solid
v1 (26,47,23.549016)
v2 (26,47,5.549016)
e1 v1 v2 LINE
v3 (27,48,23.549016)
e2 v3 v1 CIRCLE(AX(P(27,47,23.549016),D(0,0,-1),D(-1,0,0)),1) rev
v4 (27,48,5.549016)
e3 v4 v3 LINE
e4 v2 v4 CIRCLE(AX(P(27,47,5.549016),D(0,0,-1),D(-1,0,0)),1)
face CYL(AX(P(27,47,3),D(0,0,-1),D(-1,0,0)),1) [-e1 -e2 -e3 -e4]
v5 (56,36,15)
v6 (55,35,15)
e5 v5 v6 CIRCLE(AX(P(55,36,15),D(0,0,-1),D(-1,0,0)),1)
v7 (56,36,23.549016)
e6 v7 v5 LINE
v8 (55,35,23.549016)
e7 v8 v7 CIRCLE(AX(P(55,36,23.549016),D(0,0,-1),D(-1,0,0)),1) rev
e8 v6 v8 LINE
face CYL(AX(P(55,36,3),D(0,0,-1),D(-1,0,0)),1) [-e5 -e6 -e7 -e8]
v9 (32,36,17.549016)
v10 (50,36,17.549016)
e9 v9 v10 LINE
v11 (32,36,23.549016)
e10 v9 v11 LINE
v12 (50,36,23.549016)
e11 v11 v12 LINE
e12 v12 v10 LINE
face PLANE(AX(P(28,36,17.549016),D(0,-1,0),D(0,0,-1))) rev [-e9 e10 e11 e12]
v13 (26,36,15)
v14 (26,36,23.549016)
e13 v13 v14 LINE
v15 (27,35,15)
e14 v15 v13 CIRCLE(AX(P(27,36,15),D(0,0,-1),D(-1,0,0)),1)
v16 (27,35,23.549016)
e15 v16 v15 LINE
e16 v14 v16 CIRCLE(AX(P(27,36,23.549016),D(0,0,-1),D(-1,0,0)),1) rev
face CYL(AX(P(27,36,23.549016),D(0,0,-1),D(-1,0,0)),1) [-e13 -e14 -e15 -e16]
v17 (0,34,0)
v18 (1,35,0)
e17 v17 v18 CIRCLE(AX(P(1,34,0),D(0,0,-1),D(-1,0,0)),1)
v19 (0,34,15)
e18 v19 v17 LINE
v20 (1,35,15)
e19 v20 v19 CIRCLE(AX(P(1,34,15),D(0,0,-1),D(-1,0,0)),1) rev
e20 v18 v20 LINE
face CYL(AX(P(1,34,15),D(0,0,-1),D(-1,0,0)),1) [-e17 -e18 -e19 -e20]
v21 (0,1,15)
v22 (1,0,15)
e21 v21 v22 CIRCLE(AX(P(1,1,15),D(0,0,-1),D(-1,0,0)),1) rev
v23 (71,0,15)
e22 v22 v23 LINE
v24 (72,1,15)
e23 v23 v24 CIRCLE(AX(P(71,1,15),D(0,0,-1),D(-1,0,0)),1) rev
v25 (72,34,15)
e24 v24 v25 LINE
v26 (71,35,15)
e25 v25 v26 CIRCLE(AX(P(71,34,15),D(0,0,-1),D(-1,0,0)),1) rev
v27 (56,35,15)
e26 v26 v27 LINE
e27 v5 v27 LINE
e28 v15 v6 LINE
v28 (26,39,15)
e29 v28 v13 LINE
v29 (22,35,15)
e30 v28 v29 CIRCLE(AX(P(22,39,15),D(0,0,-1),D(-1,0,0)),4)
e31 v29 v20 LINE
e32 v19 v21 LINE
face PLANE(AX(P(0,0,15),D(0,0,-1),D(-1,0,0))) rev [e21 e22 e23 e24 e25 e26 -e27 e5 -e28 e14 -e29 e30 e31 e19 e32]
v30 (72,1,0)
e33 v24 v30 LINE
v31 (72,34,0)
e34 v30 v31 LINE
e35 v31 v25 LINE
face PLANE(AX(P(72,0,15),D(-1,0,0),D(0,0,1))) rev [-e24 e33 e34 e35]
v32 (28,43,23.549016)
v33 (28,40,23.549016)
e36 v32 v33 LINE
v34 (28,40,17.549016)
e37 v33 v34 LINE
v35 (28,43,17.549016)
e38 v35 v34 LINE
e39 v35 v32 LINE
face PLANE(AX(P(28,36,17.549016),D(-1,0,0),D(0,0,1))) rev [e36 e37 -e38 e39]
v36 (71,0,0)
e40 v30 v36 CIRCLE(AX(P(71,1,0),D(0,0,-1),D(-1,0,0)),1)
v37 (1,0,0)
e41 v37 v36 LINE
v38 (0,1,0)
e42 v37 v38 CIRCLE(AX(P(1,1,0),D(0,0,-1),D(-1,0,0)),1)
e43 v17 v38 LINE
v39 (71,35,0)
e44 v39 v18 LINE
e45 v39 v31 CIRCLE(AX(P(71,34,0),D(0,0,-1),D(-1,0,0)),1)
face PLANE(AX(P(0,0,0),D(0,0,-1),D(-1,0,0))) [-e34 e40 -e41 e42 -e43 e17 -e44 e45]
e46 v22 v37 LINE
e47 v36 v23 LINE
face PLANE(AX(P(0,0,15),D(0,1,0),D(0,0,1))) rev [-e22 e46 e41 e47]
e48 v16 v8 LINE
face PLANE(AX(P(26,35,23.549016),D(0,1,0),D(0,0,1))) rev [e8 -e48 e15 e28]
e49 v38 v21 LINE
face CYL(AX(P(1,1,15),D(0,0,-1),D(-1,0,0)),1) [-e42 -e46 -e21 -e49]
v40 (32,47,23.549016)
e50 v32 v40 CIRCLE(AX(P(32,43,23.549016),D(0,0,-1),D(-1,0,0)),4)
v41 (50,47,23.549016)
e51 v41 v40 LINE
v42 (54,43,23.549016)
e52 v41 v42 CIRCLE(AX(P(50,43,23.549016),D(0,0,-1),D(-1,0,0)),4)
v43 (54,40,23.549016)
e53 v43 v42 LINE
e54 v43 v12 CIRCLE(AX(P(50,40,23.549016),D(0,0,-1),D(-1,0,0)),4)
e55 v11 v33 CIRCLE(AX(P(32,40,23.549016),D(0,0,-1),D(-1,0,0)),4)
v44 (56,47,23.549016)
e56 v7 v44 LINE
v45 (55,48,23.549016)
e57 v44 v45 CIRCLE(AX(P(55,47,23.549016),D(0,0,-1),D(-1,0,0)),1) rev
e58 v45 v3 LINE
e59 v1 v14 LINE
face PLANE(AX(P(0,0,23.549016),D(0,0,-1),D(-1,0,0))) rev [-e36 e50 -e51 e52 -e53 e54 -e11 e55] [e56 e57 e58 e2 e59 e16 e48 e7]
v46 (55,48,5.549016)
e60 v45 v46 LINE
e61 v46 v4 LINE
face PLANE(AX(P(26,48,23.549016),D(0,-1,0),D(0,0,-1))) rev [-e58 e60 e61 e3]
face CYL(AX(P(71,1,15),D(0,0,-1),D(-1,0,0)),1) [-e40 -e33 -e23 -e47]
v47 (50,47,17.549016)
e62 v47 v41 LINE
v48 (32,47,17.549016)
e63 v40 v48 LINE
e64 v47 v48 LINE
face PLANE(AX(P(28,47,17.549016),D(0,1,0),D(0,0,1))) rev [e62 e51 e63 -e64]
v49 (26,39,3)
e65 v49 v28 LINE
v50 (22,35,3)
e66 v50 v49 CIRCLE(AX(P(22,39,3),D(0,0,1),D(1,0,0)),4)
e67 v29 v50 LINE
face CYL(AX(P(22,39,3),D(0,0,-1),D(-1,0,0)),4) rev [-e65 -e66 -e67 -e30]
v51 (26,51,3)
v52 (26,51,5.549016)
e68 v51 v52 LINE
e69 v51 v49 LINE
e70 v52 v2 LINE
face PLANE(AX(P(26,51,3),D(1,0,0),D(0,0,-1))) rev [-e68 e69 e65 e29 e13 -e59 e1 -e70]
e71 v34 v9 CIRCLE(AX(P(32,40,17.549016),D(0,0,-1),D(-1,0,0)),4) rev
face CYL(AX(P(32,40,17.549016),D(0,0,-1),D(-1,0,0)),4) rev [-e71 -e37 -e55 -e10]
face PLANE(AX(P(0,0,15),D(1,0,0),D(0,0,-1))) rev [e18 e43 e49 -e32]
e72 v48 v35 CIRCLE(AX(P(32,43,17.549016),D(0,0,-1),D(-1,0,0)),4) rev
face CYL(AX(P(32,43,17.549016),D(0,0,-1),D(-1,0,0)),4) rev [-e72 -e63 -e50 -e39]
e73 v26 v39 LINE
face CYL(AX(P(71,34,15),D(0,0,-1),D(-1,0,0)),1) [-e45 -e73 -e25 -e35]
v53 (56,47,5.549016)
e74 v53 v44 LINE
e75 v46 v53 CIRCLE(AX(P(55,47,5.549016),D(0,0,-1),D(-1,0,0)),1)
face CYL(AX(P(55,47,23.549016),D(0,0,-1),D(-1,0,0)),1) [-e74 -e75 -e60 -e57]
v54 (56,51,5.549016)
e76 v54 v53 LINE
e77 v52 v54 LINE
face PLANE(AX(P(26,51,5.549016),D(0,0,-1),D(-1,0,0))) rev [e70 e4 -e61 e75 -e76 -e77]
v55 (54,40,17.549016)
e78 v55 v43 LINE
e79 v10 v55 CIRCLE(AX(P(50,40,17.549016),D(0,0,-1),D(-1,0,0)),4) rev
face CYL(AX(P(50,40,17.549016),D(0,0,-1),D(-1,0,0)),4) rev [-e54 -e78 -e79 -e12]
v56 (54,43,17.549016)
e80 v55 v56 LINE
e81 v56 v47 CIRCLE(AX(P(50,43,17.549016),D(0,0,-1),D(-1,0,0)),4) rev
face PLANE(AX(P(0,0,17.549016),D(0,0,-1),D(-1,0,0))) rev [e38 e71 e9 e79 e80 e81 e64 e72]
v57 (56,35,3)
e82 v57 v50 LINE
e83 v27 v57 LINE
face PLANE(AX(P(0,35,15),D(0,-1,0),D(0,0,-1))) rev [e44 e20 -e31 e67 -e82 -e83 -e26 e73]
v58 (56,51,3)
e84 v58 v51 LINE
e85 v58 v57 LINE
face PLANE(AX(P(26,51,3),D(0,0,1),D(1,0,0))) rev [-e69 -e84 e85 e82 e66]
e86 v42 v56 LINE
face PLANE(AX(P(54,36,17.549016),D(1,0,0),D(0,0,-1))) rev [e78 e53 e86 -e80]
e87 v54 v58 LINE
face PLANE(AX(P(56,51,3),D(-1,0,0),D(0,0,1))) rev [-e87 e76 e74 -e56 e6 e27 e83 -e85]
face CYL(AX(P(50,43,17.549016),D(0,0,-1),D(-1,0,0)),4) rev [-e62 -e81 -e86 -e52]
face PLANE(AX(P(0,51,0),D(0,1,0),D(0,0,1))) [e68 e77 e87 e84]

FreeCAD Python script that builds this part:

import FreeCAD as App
import Part
import Sketcher
Q = App.Units.Quantity


def edges_at(feature, points):
    """Names of the edges that pass closest to the given points."""
    edges = feature.Shape.Edges
    near = lambda p: min(range(len(edges)), key=lambda i: edges[i].distToShape(Part.Vertex(*p))[0])
    return sorted({f"Edge{near(p) + 1}" for p in points})


def add_polygon(sketch, points):
    """Adds a closed chain of lines whose ends are joined by coincident constraints."""
    first, n = sketch.GeometryCount, len(points)
    for a, b in zip(points, points[1:] + points[:1]):
        sketch.addGeometry(Part.LineSegment(App.Vector(*a, 0), App.Vector(*b, 0)), False)
    for i in range(n):
        sketch.addConstraint(Sketcher.Constraint("Coincident", first + i, 2, first + (i + 1) % n, 1))

doc = App.newDocument("Part")
body = doc.addObject("PartDesign::Body", "Body")

sketch1 = body.newObject("Sketcher::SketchObject", "Sketch")
sketch1.AttachmentSupport = (doc.getObject("XY_Plane"), [""])
sketch1.MapMode = "FlatFace"
add_polygon(sketch1, [(0, 35), (0, 0), (72, 0), (72, 35)])
sketch1.addConstraint([
    Sketcher.Constraint("Vertical", 0),
    Sketcher.Constraint("Horizontal", 1),
    Sketcher.Constraint("Vertical", 2),
    Sketcher.Constraint("Horizontal", 3),
    Sketcher.Constraint("Coincident", 0, 2, -1, 1),
    Sketcher.Constraint("DistanceX", 1, 1, 1, 2, Q("72 mm")),
    Sketcher.Constraint("DistanceY", 0, 2, 0, 1, Q("35 mm")),
])
pad1 = body.newObject("PartDesign::Pad", "Pad")
pad1.Profile = sketch1
pad1.Length = 15

sketch2 = body.newObject("Sketcher::SketchObject", "Sketch001")
sketch2.AttachmentSupport = (doc.getObject("XZ_Plane"), [""])
sketch2.MapMode = "FlatFace"
sketch2.AttachmentOffset = App.Placement(App.Vector(0, 0, -35), App.Rotation())
add_polygon(sketch2, [(26, 3), (26, 5.549016), (56, 5.549016), (56, 3)])
sketch2.addConstraint([
    Sketcher.Constraint("Vertical", 0),
    Sketcher.Constraint("Horizontal", 1),
    Sketcher.Constraint("Vertical", 2),
    Sketcher.Constraint("Horizontal", 3),
    Sketcher.Constraint("DistanceX", 1, 1, 1, 2, Q("30 mm")),
    Sketcher.Constraint("DistanceX", -1, 1, 0, 2, Q("26 mm")),
    Sketcher.Constraint("DistanceY", -1, 1, 2, 2, Q("3 mm")),
    Sketcher.Constraint("DistanceY", 0, 1, 0, 2, Q("2.549016 mm")),
])
pad2 = body.newObject("PartDesign::Pad", "Pad001")
pad2.Profile = sketch2
pad2.Length = 16
pad2.Reversed = True

sketch3 = body.newObject("Sketcher::SketchObject", "Sketch002")
sketch3.AttachmentSupport = (doc.getObject("XY_Plane"), [""])
sketch3.MapMode = "FlatFace"
sketch3.AttachmentOffset = App.Placement(App.Vector(0, 0, 5.549016), App.Rotation())
add_polygon(sketch3, [(26, 48), (26, 35), (56, 35), (56, 48)])
sketch3.addConstraint([
    Sketcher.Constraint("Vertical", 0),
    Sketcher.Constraint("Horizontal", 1),
    Sketcher.Constraint("Vertical", 2),
    Sketcher.Constraint("Horizontal", 3),
    Sketcher.Constraint("DistanceX", 1, 1, 1, 2, Q("30 mm")),
    Sketcher.Constraint("DistanceY", 0, 2, 0, 1, Q("13 mm")),
    Sketcher.Constraint("DistanceX", -1, 1, 0, 2, Q("26 mm")),
    Sketcher.Constraint("DistanceY", -1, 1, 0, 2, Q("35 mm")),
])
pad3 = body.newObject("PartDesign::Pad", "Pad002")
pad3.Profile = sketch3
pad3.Length = 18

sketch4 = body.newObject("Sketcher::SketchObject", "Sketch003")
sketch4.AttachmentSupport = (doc.getObject("XY_Plane"), [""])
sketch4.MapMode = "FlatFace"
sketch4.AttachmentOffset = App.Placement(App.Vector(0, 0, 23.549016), App.Rotation())
add_polygon(sketch4, [(28, 47), (28, 36), (54, 36), (54, 47)])
sketch4.addConstraint([
    Sketcher.Constraint("Vertical", 0),
    Sketcher.Constraint("Horizontal", 1),
    Sketcher.Constraint("Vertical", 2),
    Sketcher.Constraint("Horizontal", 3),
    Sketcher.Constraint("DistanceX", 1, 1, 1, 2, Q("26 mm")),
    Sketcher.Constraint("DistanceY", 0, 2, 0, 1, Q("11 mm")),
    Sketcher.Constraint("DistanceX", -1, 1, 0, 2, Q("28 mm")),
    Sketcher.Constraint("DistanceY", -1, 1, 0, 2, Q("36 mm")),
])
pocket1 = body.newObject("PartDesign::Pocket", "Pocket")
pocket1.Profile = sketch4
pocket1.Length = 6
doc.recompute()

fillet = body.newObject("PartDesign::Fillet", "Fillet")
fillet.Base = (pocket1, edges_at(pocket1, [
    (28, 36, 20.549),
    (28, 47, 20.549),
    (54, 47, 20.549),
    (54, 36, 20.549),
]))
fillet.Radius = 4
doc.recompute()

fillet2 = body.newObject("PartDesign::Fillet", "Fillet001")
fillet2.Base = (fillet, edges_at(fillet, [(26, 35, 9)]))
fillet2.Radius = 4
doc.recompute()

fillet3 = body.newObject("PartDesign::Fillet", "Fillet002")
fillet3.Base = (fillet2, edges_at(fillet2, [
    (26, 35, 19.275),
    (26, 48, 14.549),
    (56, 35, 19.275),
    (56, 48, 14.549),
    (0, 35, 7.5),
    (72, 35, 7.5),
    (72, 0, 7.5),
    (0, 0, 7.5),
]))
fillet3.Radius = 1

doc.recompute()
